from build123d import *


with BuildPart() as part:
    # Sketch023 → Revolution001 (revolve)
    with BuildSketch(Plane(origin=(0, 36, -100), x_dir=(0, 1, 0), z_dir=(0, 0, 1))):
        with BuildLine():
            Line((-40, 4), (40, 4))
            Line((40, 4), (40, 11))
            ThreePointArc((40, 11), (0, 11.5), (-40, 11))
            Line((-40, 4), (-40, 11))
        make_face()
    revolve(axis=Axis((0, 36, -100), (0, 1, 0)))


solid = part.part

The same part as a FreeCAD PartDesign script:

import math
import FreeCAD as App
import Part
import Sketcher
from FreeCAD import Vector

doc = App.newDocument("Part")
body = doc.addObject("PartDesign::Body", "Body")

# Sketch on XY plane
sketch1 = body.newObject("Sketcher::SketchObject", "Sketch")
sketch1.AttachmentSupport = (doc.getObject("XY_Plane"), [""])
sketch1.MapMode = "FlatFace"
sketch1.AttachmentOffset = App.Placement(Vector(0, 0, -100), App.Rotation())
sketch1.addGeometry([
    Part.LineSegment(Vector(-4, -4, 0), Vector(-4, 76, 0)),
    Part.LineSegment(Vector(-4, 76, 0), Vector(-11, 76, 0)),
    Part.ArcOfCircle(Part.Circle(Vector(1589, 36, 0), Vector(0, 0, 1), 1600), math.radians(178.57), math.radians(181.43)),
    Part.LineSegment(Vector(-11, -4, 0), Vector(-4, -4, 0)),
], False)
sketch1.addConstraint([
    Sketcher.Constraint("Coincident", 0, 2, 1, 1),
    Sketcher.Constraint("Coincident", 1, 2, 2, 1),
    Sketcher.Constraint("Coincident", 2, 2, 3, 1),
    Sketcher.Constraint("Coincident", 3, 2, 0, 1),
    Sketcher.Constraint("Vertical", 0),
    Sketcher.Constraint("Horizontal", 1),
    Sketcher.Constraint("Horizontal", 3),
    Sketcher.Constraint("Equal", 1, 3),
    Sketcher.Constraint("DistanceX", 1, 2, 1, 1, 7.0),
    Sketcher.Constraint("DistanceY", 0, 1, 0, 2, 80.0),
    Sketcher.Constraint("Radius", 2, 1600.25),
    Sketcher.Constraint("DistanceY", -1, 1, 2, 3, 36.0),
    Sketcher.Constraint("DistanceX", 0, 2, -1, 1, 4.0),
])
revolution = body.newObject("PartDesign::Revolution", "Revolution")
revolution.Profile = sketch1
revolution.ReferenceAxis = (sketch1, ["V_Axis"])
revolution.Angle = 360

doc.recompute()
